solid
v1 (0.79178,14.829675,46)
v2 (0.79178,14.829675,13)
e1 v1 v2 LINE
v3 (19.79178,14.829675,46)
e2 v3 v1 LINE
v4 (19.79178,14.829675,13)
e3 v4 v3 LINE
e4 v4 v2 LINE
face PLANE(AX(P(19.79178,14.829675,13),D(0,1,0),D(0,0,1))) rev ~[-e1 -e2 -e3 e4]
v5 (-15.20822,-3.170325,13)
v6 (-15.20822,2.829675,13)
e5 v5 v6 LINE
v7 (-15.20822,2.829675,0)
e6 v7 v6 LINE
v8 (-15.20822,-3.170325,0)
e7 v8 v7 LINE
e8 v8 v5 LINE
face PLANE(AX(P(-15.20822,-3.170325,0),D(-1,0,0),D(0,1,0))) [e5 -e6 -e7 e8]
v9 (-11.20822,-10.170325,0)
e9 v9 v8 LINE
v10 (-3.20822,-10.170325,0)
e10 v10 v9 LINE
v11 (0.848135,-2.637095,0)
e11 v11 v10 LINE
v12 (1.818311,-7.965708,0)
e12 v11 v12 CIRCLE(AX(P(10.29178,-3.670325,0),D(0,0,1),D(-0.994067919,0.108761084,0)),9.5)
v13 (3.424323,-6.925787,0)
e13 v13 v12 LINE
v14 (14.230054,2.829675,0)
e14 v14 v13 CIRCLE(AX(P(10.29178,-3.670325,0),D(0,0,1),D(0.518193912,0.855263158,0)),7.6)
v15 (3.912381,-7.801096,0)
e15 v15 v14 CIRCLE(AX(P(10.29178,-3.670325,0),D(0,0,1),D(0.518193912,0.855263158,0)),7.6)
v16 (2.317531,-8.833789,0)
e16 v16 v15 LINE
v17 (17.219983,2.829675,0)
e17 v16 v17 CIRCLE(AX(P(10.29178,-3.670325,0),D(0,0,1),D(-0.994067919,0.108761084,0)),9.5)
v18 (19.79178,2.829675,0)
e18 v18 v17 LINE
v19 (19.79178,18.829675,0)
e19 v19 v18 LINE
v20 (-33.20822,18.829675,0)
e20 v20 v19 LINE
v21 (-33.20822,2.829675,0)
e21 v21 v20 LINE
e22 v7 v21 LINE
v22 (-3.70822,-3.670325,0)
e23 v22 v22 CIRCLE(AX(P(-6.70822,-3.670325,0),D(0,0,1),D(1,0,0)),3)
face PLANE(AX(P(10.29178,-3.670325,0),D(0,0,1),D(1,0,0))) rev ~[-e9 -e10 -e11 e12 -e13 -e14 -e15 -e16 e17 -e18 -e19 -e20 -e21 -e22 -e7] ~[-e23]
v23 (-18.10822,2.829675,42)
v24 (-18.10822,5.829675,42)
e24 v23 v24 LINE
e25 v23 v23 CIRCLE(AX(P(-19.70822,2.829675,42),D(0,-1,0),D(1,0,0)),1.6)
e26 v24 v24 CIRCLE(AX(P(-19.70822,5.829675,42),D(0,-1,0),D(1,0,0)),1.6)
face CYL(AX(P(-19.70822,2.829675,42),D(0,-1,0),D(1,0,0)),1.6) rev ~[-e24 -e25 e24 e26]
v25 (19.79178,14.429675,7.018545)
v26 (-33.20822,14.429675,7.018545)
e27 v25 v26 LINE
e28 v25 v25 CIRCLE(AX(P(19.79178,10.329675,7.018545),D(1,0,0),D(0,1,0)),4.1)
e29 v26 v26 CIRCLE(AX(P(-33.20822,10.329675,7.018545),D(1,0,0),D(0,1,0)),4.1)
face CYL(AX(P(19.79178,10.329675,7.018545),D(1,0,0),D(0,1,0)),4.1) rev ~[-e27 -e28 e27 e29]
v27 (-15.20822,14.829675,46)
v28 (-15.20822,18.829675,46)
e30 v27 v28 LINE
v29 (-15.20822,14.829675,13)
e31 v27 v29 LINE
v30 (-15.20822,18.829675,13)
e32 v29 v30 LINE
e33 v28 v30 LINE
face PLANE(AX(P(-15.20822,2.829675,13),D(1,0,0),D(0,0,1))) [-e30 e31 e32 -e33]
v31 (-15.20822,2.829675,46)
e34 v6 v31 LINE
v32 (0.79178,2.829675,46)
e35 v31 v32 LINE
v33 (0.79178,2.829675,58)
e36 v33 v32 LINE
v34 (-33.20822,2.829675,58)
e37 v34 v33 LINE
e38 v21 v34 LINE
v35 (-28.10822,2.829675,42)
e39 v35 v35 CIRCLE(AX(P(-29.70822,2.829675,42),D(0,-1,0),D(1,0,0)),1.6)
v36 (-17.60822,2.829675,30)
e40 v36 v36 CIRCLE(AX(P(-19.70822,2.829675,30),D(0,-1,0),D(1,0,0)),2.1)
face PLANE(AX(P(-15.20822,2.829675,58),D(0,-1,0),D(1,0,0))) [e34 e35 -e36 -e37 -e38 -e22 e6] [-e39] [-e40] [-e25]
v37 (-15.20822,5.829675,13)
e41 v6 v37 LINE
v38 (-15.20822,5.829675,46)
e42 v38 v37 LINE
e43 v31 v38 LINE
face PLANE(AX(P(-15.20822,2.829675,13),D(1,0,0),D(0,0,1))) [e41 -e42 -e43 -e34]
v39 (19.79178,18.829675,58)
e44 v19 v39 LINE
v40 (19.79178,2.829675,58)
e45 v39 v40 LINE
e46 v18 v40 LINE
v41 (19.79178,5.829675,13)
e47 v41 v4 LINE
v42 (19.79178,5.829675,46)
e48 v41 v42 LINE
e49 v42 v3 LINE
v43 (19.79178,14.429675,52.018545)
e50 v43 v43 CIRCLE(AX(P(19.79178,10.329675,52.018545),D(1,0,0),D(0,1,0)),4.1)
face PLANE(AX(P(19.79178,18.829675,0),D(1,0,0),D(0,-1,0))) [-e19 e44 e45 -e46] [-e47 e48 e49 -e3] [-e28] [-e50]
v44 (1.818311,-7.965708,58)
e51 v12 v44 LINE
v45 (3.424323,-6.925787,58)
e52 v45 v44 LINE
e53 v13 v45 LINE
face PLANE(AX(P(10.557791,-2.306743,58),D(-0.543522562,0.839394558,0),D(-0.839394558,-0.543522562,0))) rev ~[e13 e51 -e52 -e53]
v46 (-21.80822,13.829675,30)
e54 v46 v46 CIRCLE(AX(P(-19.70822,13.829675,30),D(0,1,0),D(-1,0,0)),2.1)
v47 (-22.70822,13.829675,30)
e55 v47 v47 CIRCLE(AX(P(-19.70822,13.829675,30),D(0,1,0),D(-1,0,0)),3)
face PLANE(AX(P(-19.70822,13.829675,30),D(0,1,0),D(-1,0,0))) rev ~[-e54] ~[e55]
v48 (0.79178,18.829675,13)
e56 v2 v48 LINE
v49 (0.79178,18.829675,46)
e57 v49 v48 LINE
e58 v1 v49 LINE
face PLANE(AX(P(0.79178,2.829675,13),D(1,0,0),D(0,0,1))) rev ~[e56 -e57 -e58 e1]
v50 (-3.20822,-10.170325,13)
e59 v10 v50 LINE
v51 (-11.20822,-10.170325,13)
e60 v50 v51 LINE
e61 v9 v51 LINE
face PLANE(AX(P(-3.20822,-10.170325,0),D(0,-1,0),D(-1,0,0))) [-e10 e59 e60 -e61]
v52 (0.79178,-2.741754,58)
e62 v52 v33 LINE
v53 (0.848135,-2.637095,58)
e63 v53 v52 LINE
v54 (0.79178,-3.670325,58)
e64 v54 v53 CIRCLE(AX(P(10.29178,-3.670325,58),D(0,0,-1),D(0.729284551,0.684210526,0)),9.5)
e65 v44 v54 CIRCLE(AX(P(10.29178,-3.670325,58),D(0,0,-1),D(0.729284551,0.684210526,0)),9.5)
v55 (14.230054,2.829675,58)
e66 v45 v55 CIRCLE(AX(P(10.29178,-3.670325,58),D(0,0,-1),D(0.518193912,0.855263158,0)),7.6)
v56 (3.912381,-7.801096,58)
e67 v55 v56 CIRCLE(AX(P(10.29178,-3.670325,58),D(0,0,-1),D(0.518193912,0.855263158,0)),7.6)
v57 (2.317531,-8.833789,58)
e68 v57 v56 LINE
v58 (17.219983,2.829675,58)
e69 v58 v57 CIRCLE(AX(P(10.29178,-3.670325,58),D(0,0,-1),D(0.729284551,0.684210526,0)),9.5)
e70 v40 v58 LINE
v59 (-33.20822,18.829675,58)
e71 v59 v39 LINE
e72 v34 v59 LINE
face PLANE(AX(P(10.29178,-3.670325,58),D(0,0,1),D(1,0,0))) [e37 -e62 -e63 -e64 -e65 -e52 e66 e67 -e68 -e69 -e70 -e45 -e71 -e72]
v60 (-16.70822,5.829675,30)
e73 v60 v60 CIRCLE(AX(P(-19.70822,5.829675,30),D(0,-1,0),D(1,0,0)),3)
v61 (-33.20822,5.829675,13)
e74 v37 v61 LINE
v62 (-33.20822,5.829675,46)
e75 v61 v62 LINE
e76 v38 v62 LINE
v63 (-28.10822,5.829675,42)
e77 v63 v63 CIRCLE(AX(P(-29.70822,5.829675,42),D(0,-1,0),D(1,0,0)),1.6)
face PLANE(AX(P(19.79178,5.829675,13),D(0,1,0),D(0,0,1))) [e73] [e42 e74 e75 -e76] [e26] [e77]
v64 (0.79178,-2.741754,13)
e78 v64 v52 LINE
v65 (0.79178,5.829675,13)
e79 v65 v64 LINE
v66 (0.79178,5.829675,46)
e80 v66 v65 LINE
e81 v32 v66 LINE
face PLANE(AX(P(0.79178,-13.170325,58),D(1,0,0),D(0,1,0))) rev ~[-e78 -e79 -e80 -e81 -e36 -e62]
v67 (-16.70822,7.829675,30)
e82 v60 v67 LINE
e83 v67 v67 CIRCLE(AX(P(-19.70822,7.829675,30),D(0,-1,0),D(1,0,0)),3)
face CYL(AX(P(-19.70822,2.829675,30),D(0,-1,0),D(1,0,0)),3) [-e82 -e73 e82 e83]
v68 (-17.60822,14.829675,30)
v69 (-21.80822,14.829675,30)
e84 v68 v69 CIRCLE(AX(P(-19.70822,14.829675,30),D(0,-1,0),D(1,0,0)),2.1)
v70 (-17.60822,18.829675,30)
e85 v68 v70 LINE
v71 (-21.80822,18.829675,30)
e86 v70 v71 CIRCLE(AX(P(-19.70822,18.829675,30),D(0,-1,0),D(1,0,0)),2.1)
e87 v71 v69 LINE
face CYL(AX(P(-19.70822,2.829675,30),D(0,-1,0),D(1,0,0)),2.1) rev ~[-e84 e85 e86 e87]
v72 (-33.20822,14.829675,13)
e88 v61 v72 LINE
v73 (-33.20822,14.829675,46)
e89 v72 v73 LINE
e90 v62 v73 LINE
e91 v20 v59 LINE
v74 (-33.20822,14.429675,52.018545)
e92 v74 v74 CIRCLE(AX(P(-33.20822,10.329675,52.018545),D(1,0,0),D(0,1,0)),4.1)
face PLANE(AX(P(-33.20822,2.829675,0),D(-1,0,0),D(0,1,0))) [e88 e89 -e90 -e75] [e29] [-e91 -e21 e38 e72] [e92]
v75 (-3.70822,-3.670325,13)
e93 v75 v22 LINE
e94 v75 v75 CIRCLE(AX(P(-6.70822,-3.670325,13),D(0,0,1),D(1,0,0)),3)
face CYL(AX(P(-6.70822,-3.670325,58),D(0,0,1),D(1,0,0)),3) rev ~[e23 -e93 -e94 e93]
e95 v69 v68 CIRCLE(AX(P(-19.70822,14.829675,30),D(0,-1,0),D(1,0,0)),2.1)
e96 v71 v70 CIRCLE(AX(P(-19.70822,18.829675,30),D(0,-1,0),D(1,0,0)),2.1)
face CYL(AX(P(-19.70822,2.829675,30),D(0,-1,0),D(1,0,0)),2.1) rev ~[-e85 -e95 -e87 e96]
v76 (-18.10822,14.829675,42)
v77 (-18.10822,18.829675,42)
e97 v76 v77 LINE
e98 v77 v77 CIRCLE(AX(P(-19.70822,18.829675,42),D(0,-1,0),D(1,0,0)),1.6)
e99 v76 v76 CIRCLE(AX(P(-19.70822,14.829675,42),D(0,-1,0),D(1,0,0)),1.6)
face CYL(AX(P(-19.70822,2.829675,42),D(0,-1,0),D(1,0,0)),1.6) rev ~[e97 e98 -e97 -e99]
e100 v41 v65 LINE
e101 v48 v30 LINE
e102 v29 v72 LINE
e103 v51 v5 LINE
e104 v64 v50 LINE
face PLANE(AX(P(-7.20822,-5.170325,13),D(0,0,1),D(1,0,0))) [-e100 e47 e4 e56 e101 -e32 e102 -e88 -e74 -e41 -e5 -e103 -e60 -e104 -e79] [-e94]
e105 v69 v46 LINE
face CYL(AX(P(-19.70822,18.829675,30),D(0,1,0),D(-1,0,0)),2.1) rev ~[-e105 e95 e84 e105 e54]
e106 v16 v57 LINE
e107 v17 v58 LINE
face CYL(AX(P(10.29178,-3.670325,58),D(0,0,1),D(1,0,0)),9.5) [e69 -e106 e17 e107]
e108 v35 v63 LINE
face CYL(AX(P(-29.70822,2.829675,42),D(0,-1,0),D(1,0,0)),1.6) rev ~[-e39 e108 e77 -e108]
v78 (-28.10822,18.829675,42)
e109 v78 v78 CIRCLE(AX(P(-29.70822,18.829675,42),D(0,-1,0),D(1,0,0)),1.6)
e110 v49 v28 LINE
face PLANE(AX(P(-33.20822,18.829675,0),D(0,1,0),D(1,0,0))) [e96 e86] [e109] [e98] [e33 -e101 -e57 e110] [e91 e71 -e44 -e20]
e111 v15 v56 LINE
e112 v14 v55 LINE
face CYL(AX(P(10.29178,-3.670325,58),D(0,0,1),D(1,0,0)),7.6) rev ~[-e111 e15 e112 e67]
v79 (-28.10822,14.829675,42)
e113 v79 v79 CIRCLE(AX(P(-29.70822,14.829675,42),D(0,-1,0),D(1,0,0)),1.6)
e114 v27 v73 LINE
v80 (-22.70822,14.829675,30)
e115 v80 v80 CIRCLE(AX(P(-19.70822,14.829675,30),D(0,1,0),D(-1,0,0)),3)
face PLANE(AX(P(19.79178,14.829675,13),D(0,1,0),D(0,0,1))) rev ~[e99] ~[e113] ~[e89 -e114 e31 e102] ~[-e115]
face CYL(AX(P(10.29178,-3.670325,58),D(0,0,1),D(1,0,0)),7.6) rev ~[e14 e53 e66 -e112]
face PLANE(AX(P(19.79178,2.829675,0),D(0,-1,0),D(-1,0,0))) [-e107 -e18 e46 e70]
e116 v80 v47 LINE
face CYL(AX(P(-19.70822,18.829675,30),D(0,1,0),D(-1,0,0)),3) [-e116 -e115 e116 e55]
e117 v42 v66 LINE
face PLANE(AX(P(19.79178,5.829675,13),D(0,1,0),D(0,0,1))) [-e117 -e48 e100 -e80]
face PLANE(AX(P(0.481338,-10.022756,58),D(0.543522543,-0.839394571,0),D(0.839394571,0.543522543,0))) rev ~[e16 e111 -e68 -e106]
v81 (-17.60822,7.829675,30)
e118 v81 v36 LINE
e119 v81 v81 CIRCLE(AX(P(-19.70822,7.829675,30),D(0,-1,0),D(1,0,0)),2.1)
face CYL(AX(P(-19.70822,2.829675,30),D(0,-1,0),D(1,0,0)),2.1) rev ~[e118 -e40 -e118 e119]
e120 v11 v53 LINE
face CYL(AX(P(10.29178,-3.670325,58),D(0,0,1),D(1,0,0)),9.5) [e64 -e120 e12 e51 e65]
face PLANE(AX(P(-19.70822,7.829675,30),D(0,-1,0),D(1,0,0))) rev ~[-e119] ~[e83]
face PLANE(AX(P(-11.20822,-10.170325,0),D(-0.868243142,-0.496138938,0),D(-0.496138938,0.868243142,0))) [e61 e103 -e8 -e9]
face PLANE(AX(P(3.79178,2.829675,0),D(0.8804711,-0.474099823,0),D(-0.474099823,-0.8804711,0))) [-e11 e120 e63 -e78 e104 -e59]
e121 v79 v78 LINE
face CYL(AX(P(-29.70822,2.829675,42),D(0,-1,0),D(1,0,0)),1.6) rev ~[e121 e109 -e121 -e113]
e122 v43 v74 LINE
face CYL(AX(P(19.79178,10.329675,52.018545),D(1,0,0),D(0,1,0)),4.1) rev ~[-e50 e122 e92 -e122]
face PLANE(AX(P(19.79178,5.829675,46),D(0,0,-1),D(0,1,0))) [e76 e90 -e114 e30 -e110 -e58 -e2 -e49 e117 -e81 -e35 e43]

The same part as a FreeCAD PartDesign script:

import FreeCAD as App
import Part
import Sketcher
Q = App.Units.Quantity

doc = App.newDocument("Part")
body = doc.addObject("PartDesign::Body", "Body")

sketch1 = doc.addObject("Sketcher::SketchObject", "Sketch")
body.addObject(sketch1)
sketch1.AttachmentSupport = (doc.XY_Plane, [""])
sketch1.MapMode = "FlatFace"
sketch1.addGeometry([
    Part.LineSegment(App.Vector(20, 19, 0), App.Vector(-33, 19, 0)),
    Part.LineSegment(App.Vector(-33, 19, 0), App.Vector(-33, 3, 0)),
    Part.LineSegment(App.Vector(-33, 3, 0), App.Vector(-15, 3, 0)),
    Part.LineSegment(App.Vector(-15, 3, 0), App.Vector(-15, -3, 0)),
    Part.LineSegment(App.Vector(-15, -3, 0), App.Vector(-11, -10, 0)),
    Part.LineSegment(App.Vector(-11, -10, 0), App.Vector(-3, -10, 0)),
    Part.LineSegment(App.Vector(-3, -10, 0), App.Vector(4, 3, 0)),
    Part.LineSegment(App.Vector(4, 3, 0), App.Vector(20, 3, 0)),
    Part.LineSegment(App.Vector(20, 3, 0), App.Vector(20, 19, 0)),
], False)
sketch1.addConstraint([
    Sketcher.Constraint("Coincident", 0, 2, 1, 1),
    Sketcher.Constraint("Coincident", 1, 2, 2, 1),
    Sketcher.Constraint("Coincident", 2, 2, 3, 1),
    Sketcher.Constraint("Coincident", 3, 2, 4, 1),
    Sketcher.Constraint("Coincident", 4, 2, 5, 1),
    Sketcher.Constraint("Coincident", 5, 2, 6, 1),
    Sketcher.Constraint("Coincident", 6, 2, 7, 1),
    Sketcher.Constraint("Coincident", 7, 2, 8, 1),
    Sketcher.Constraint("Coincident", 8, 2, 0, 1),
    Sketcher.Constraint("Horizontal", 0),
    Sketcher.Constraint("Vertical", 1),
    Sketcher.Constraint("Horizontal", 2),
    Sketcher.Constraint("Vertical", 3),
    Sketcher.Constraint("Horizontal", 5),
    Sketcher.Constraint("Horizontal", 7),
    Sketcher.Constraint("Vertical", 8),
    Sketcher.Constraint("Horizontal", 2, 2, 6, 2),
    Sketcher.Constraint("Equal", 7, 1),
    Sketcher.Constraint("DistanceX", 0, 2, 0, 1, Q("53 mm")),
    Sketcher.Constraint("DistanceX", 2, 1, 2, 2, Q("18 mm")),
    Sketcher.Constraint("DistanceX", 5, 1, 5, 2, Q("8 mm")),
    Sketcher.Constraint("DistanceX", 7, 1, 7, 2, Q("16 mm")),
    Sketcher.Constraint("DistanceY", 3, 2, 3, 1, Q("6 mm")),
    Sketcher.Constraint("DistanceX", 3, 2, 4, 2, Q("4 mm")),
    Sketcher.Constraint("DistanceY", 4, 2, 3, 2, Q("7 mm")),
    Sketcher.Constraint("DistanceX", 0, 2, -1, 1, Q("33.20822 mm")),
    Sketcher.Constraint("DistanceY", -1, 1, 0, 2, Q("18.829675 mm")),
])
pad1 = doc.addObject("PartDesign::Pad", "Pad")
body.addObject(pad1)
pad1.Profile = sketch1
pad1.Length = 58

sketch2 = doc.addObject("Sketcher::SketchObject", "Sketch001")
body.addObject(sketch2)
sketch2.AttachmentSupport = (doc.XY_Plane, [""])
sketch2.MapMode = "FlatFace"
sketch2.AttachmentOffset = App.Placement(App.Vector(0, 0, 58), App.Rotation())
sketch2.addGeometry([
    Part.Circle(App.Vector(10, -4, 0), App.Vector(0, 0, 1), 10),
    Part.Circle(App.Vector(10, -4, 0), App.Vector(0, 0, 1), 8),
], False)
sketch2.addConstraint([
    Sketcher.Constraint("Coincident", 1, 3, 0, 3),
    Sketcher.Constraint("Diameter", 0, Q("19 mm")),
    Sketcher.Constraint("Diameter", 1, Q("15.2 mm")),
    Sketcher.Constraint("DistanceX", -1, 1, 0, 3, Q("10.29178 mm")),
    Sketcher.Constraint("DistanceY", 0, 3, -1, 1, Q("3.670325 mm")),
])
pad2 = doc.addObject("PartDesign::Pad", "Pad001")
body.addObject(pad2)
pad2.Profile = sketch2
pad2.Length = 58
pad2.Reversed = True

sketch3 = doc.addObject("Sketcher::SketchObject", "Sketch002")
body.addObject(sketch3)
sketch3.AttachmentSupport = (doc.XY_Plane, [""])
sketch3.MapMode = "FlatFace"
sketch3.AttachmentOffset = App.Placement(App.Vector(0, 0, 58), App.Rotation())
sketch3.addGeometry([
    Part.Circle(App.Vector(10.3, -3.7, 0), App.Vector(0, 0, 1), 7.6),
    Part.Circle(App.Vector(-6.7, -3.7, 0), App.Vector(0, 0, 1), 3),
], False)
sketch3.addConstraint([
    Sketcher.Constraint("Horizontal", 0, 3, 1, 3),
    Sketcher.Constraint("Diameter", 1, Q("6 mm")),
    Sketcher.Constraint("Diameter", 0, Q("15.2 mm")),
    Sketcher.Constraint("DistanceX", 1, 3, 0, 3, Q("17 mm")),
    Sketcher.Constraint("DistanceX", -1, 1, 0, 3, Q("10.29178 mm")),
    Sketcher.Constraint("DistanceY", 0, 3, -1, 1, Q("3.670325 mm")),
])
pocket1 = doc.addObject("PartDesign::Pocket", "Pocket")
body.addObject(pocket1)
pocket1.Profile = sketch3
pocket1.Length = 58

sketch4 = doc.addObject("Sketcher::SketchObject", "Sketch003")
body.addObject(sketch4)
sketch4.AttachmentSupport = (doc.YZ_Plane, [""])
sketch4.MapMode = "FlatFace"
sketch4.AttachmentOffset = App.Placement(App.Vector(0, 0, 19.79178), App.Rotation())
sketch4.addGeometry([
    Part.Circle(App.Vector(10.3, 52, 0), App.Vector(0, 0, 1), 4.1),
    Part.Circle(App.Vector(10.3, 7, 0), App.Vector(0, 0, 1), 4.1),
    Part.LineSegment(App.Vector(5.8, 46, 0), App.Vector(5.8, 13, 0)),
    Part.LineSegment(App.Vector(5.8, 13, 0), App.Vector(14.8, 13, 0)),
    Part.LineSegment(App.Vector(14.8, 13, 0), App.Vector(14.8, 46, 0)),
    Part.LineSegment(App.Vector(14.8, 46, 0), App.Vector(5.8, 46, 0)),
], False)
sketch4.addConstraint([
    Sketcher.Constraint("Coincident", 2, 2, 3, 1),
    Sketcher.Constraint("Coincident", 3, 2, 4, 1),
    Sketcher.Constraint("Coincident", 4, 2, 5, 1),
    Sketcher.Constraint("Coincident", 5, 2, 2, 1),
    Sketcher.Constraint("Vertical", 2),
    Sketcher.Constraint("Horizontal", 3),
    Sketcher.Constraint("Vertical", 4),
    Sketcher.Constraint("Horizontal", 5),
    Sketcher.Constraint("Equal", 0, 1),
    Sketcher.Constraint("Vertical", 0, 3, 1, 3),
    Sketcher.Constraint("Diameter", 0, Q("8.2 mm")),
    Sketcher.Constraint("DistanceX", 3, 1, 3, 2, Q("9 mm")),
    Sketcher.Constraint("DistanceY", 2, 2, 2, 1, Q("33 mm")),
    Sketcher.Constraint("DistanceY", -1, 1, 2, 2, Q("13 mm")),
    Sketcher.Constraint("DistanceY", 1, 3, 0, 3, Q("45 mm")),
    Sketcher.Constraint("DistanceX", 2, 2, 1, 3, Q("4.5 mm")),
    Sketcher.Constraint("DistanceX", -1, 1, 0, 3, Q("10.329675 mm")),
    Sketcher.Constraint("DistanceY", -1, 1, 0, 3, Q("52.018545 mm")),
])
pocket2 = doc.addObject("PartDesign::Pocket", "Pocket001")
body.addObject(pocket2)
pocket2.Profile = sketch4
pocket2.Length = 53

sketch5 = doc.addObject("Sketcher::SketchObject", "Sketch004")
body.addObject(sketch5)
sketch5.AttachmentSupport = (doc.XY_Plane, [""])
sketch5.MapMode = "FlatFace"
sketch5.AttachmentOffset = App.Placement(App.Vector(0, 0, 58), App.Rotation())
sketch5.addGeometry([
    Part.LineSegment(App.Vector(-15, 3, 0), App.Vector(-15, -13, 0)),
    Part.LineSegment(App.Vector(-15, -13, 0), App.Vector(1, -13, 0)),
    Part.LineSegment(App.Vector(1, -13, 0), App.Vector(1, 3, 0)),
    Part.LineSegment(App.Vector(1, 3, 0), App.Vector(-15, 3, 0)),
], False)
sketch5.addConstraint([
    Sketcher.Constraint("Coincident", 0, 2, 1, 1),
    Sketcher.Constraint("Coincident", 1, 2, 2, 1),
    Sketcher.Constraint("Coincident", 2, 2, 3, 1),
    Sketcher.Constraint("Coincident", 3, 2, 0, 1),
    Sketcher.Constraint("Vertical", 0),
    Sketcher.Constraint("Horizontal", 1),
    Sketcher.Constraint("Vertical", 2),
    Sketcher.Constraint("Horizontal", 3),
    Sketcher.Constraint("Equal", 3, 0),
    Sketcher.Constraint("DistanceX", 1, 1, 1, 2, Q("16 mm")),
    Sketcher.Constraint("DistanceX", 0, 2, -1, 1, Q("15.20822 mm")),
    Sketcher.Constraint("DistanceY", 0, 2, -1, 1, Q("13.170325 mm")),
])
pocket3 = doc.addObject("PartDesign::Pocket", "Pocket002")
body.addObject(pocket3)
pocket3.Profile = sketch5
pocket3.Length = 45

sketch6 = doc.addObject("Sketcher::SketchObject", "Sketch005")
body.addObject(sketch6)
sketch6.AttachmentSupport = (doc.XZ_Plane, [""])
sketch6.MapMode = "FlatFace"
sketch6.AttachmentOffset = App.Placement(App.Vector(0, 0, -2.829675), App.Rotation())
sketch6.addGeometry([
    Part.LineSegment(App.Vector(-15, 46, 0), App.Vector(-15, 13, 0)),
    Part.LineSegment(App.Vector(-15, 13, 0), App.Vector(1, 13, 0)),
    Part.LineSegment(App.Vector(1, 13, 0), App.Vector(1, 46, 0)),
    Part.LineSegment(App.Vector(1, 46, 0), App.Vector(-15, 46, 0)),
], False)
sketch6.addConstraint([
    Sketcher.Constraint("Coincident", 0, 2, 1, 1),
    Sketcher.Constraint("Coincident", 1, 2, 2, 1),
    Sketcher.Constraint("Coincident", 2, 2, 3, 1),
    Sketcher.Constraint("Coincident", 3, 2, 0, 1),
    Sketcher.Constraint("Vertical", 0),
    Sketcher.Constraint("Horizontal", 1),
    Sketcher.Constraint("Vertical", 2),
    Sketcher.Constraint("Horizontal", 3),
    Sketcher.Constraint("DistanceX", 1, 1, 1, 2, Q("16 mm")),
    Sketcher.Constraint("DistanceY", 0, 2, 0, 1, Q("33 mm")),
    Sketcher.Constraint("DistanceY", -1, 1, 0, 2, Q("13 mm")),
    Sketcher.Constraint("DistanceX", 0, 2, -1, 1, Q("15.20822 mm")),
])
pocket4 = doc.addObject("PartDesign::Pocket", "Pocket003")
body.addObject(pocket4)
pocket4.Profile = sketch6
pocket4.Length = 40

sketch7 = doc.addObject("Sketcher::SketchObject", "Sketch006")
body.addObject(sketch7)
sketch7.AttachmentSupport = (doc.XZ_Plane, [""])
sketch7.MapMode = "FlatFace"
sketch7.AttachmentOffset = App.Placement(App.Vector(0, 0, -2.829675), App.Rotation())
sketch7.addGeometry([
    Part.Circle(App.Vector(-19.7, 30, 0), App.Vector(0, 0, 1), 2.1),
    Part.Circle(App.Vector(-29.7, 42, 0), App.Vector(0, 0, 1), 1.6),
    Part.Circle(App.Vector(-19.7, 42, 0), App.Vector(0, 0, 1), 1.6),
], False)
sketch7.addConstraint([
    Sketcher.Constraint("Equal", 1, 2),
    Sketcher.Constraint("Horizontal", 1, 3, 2, 3),
    Sketcher.Constraint("Vertical", 0, 3, 2, 3),
    Sketcher.Constraint("Diameter", 0, Q("4.2 mm")),
    Sketcher.Constraint("Diameter", 1, Q("3.2 mm")),
    Sketcher.Constraint("DistanceY", -1, 1, 0, 3, Q("30 mm")),
    Sketcher.Constraint("DistanceY", -1, 1, 1, 3, Q("42 mm")),
    Sketcher.Constraint("DistanceX", 1, 3, 0, 3, Q("10 mm")),
    Sketcher.Constraint("DistanceX", 0, 3, -1, 1, Q("19.70822 mm")),
])
pocket5 = doc.addObject("PartDesign::Pocket", "Pocket004")
body.addObject(pocket5)
pocket5.Profile = sketch7
pocket5.Length = 30

sketch8 = doc.addObject("Sketcher::SketchObject", "Sketch007")
body.addObject(sketch8)
sketch8.AttachmentSupport = (doc.XZ_Plane, [""])
sketch8.MapMode = "FlatFace"
sketch8.AttachmentOffset = App.Placement(App.Vector(0, 0, -2.829675), App.Rotation())
sketch8.addGeometry([
    Part.Circle(App.Vector(-19.7, 30, 0), App.Vector(0, 0, 1), 3),
    Part.Circle(App.Vector(-19.7, 30, 0), App.Vector(0, 0, 1), 2.1),
], False)
sketch8.addConstraint([
    Sketcher.Constraint("Coincident", 1, 3, 0, 3),
    Sketcher.Constraint("Diameter", 0, Q("6 mm")),
    Sketcher.Constraint("Diameter", 1, Q("4.2 mm")),
    Sketcher.Constraint("DistanceY", -1, 1, 0, 3, Q("30 mm")),
    Sketcher.Constraint("DistanceX", 0, 3, -1, 1, Q("19.70822 mm")),
])
pad3 = doc.addObject("PartDesign::Pad", "Pad002")
body.addObject(pad3)
pad3.Profile = sketch8
pad3.Length = 5
pad3.Reversed = True

sketch9 = doc.addObject("Sketcher::SketchObject", "Sketch008")
body.addObject(sketch9)
sketch9.AttachmentSupport = (doc.XZ_Plane, [""])
sketch9.MapMode = "FlatFace"
sketch9.AttachmentOffset = App.Placement(App.Vector(0, 0, -18.829675), App.Rotation())
sketch9.addGeometry([
    Part.Circle(App.Vector(-19.7, 30, 0), App.Vector(0, 0, 1), 3),
    Part.Circle(App.Vector(-19.7, 30, 0), App.Vector(0, 0, 1), 2.1),
], False)
sketch9.addConstraint([
    Sketcher.Constraint("Coincident", 1, 3, 0, 3),
    Sketcher.Constraint("Diameter", 0, Q("6 mm")),
    Sketcher.Constraint("Diameter", 1, Q("4.2 mm")),
    Sketcher.Constraint("DistanceY", -1, 1, 0, 3, Q("30 mm")),
    Sketcher.Constraint("DistanceX", 0, 3, -1, 1, Q("19.70822 mm")),
])
pad4 = doc.addObject("PartDesign::Pad", "Pad003")
body.addObject(pad4)
pad4.Profile = sketch9
pad4.Length = 5

sketch10 = doc.addObject("Sketcher::SketchObject", "Sketch009")
body.addObject(sketch10)
sketch10.AttachmentSupport = (doc.XY_Plane, [""])
sketch10.MapMode = "FlatFace"
sketch10.AttachmentOffset = App.Placement(App.Vector(0, 0, 58), App.Rotation())
sketch10.addGeometry([
    Part.LineSegment(App.Vector(10.6, -2.3, 0), App.Vector(-0.1, -9.2, 0)),
    Part.LineSegment(App.Vector(-0.1, -9.2, 0), App.Vector(0.5, -10, 0)),
    Part.LineSegment(App.Vector(0.5, -10, 0), App.Vector(11.1, -3.1, 0)),
    Part.LineSegment(App.Vector(11.1, -3.1, 0), App.Vector(10.6, -2.3, 0)),
], False)
sketch10.addConstraint([
    Sketcher.Constraint("Coincident", 0, 2, 1, 1),
    Sketcher.Constraint("Coincident", 1, 2, 2, 1),
    Sketcher.Constraint("Coincident", 2, 2, 3, 1),
    Sketcher.Constraint("Coincident", 3, 2, 0, 1),
    Sketcher.Constraint("Perpendicular", 0, 1),
    Sketcher.Constraint("Perpendicular", 1, 2),
    Sketcher.Constraint("Perpendicular", 2, 3),
    Sketcher.Constraint("Distance", 1, Q("1 mm")),
    Sketcher.Constraint("DistanceY", 2, 2, -1, 1, Q("3.146138 mm")),
    Sketcher.Constraint("DistanceX", -1, 1, 3, 2, Q("10.557791 mm")),
    Sketcher.Constraint("DistanceX", 3, 2, 2, 2, Q("0.543522 mm")),
    Sketcher.Constraint("DistanceY", 0, 2, 3, 2, Q("6.876619 mm")),
])
pocket6 = doc.addObject("PartDesign::Pocket", "Pocket005")
body.addObject(pocket6)
pocket6.Profile = sketch10
pocket6.Length = 58

doc.recompute()
